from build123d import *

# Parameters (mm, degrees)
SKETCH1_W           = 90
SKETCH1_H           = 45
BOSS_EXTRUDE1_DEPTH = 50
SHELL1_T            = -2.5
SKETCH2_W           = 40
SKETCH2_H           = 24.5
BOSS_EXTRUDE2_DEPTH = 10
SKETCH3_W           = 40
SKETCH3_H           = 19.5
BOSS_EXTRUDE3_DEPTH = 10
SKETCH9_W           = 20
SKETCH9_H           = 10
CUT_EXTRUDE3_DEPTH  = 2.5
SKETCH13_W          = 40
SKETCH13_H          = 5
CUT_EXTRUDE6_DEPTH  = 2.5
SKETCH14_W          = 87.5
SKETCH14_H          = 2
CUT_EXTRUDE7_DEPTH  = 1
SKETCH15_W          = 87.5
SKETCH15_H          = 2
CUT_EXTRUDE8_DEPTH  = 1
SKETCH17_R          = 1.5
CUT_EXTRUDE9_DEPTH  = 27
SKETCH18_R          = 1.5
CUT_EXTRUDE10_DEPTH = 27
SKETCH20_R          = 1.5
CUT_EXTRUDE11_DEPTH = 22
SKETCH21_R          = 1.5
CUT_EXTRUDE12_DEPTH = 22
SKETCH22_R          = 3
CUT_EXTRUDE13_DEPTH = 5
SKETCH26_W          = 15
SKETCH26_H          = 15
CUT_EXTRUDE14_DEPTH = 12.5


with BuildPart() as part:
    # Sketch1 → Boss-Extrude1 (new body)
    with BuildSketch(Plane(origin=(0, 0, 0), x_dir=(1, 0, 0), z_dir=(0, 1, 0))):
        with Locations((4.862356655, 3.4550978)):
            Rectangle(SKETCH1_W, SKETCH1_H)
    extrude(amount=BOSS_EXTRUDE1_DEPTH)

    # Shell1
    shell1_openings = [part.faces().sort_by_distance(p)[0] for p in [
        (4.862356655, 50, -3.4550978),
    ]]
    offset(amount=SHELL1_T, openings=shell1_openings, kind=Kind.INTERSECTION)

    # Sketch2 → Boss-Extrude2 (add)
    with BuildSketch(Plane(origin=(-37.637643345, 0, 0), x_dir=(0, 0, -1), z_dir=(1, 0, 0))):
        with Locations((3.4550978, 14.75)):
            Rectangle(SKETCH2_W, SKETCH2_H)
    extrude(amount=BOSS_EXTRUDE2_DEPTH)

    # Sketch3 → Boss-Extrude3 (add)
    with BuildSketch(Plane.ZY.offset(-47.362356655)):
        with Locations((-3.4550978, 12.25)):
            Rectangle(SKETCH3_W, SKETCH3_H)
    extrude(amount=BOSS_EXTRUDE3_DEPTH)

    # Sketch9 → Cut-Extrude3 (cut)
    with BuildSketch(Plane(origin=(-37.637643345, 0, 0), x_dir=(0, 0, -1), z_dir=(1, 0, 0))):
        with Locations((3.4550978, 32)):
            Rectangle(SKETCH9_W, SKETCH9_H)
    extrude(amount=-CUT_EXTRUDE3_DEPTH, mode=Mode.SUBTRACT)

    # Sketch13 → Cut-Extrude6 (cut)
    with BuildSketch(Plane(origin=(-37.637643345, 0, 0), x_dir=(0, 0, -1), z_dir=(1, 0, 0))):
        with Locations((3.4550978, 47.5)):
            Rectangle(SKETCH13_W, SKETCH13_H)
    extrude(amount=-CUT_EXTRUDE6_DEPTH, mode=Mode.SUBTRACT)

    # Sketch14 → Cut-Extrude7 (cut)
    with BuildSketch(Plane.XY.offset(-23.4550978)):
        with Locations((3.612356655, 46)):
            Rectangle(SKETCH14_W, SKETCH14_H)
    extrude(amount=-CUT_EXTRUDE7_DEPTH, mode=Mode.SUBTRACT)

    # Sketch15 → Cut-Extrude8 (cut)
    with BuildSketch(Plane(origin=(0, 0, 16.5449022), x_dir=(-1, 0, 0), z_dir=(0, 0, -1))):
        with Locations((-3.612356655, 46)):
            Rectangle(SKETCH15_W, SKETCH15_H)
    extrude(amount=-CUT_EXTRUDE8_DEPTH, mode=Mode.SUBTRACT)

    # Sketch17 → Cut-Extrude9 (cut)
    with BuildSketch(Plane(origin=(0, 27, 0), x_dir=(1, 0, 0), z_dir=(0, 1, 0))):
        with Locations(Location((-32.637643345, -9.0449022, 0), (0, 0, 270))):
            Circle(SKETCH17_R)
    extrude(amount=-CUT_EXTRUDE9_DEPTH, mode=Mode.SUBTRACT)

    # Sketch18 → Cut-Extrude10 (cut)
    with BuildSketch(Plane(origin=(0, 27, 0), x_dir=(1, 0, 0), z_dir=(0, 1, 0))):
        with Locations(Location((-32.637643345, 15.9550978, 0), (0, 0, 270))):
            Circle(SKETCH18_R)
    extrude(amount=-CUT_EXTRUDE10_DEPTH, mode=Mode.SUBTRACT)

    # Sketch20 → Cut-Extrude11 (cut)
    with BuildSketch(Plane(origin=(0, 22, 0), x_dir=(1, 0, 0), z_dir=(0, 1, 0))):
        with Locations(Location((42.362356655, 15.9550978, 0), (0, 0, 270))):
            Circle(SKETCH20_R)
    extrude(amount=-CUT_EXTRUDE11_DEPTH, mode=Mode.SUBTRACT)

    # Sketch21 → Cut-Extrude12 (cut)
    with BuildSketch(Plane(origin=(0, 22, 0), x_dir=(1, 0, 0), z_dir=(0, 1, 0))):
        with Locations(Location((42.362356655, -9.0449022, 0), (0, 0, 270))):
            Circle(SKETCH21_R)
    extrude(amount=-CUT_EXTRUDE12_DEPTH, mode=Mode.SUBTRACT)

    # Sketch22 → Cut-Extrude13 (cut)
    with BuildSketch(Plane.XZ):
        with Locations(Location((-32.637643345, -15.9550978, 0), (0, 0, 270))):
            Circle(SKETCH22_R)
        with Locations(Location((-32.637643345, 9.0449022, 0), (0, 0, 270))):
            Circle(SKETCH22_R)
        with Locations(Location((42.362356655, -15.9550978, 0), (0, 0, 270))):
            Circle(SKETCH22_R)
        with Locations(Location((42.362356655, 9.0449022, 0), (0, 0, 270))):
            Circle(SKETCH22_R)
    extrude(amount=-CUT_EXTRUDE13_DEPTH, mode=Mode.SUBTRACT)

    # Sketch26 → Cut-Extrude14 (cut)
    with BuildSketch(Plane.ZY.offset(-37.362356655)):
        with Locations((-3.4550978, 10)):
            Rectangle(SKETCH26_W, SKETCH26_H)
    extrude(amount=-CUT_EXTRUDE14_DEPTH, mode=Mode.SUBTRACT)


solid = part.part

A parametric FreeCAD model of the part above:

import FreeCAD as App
import Part
import Sketcher


def faces_at(feature, points):
    """Names of the faces that lie closest to the given points."""
    faces = feature.Shape.Faces
    near = lambda p: min(range(len(faces)), key=lambda i: faces[i].distToShape(Part.Vertex(*p))[0])
    return sorted({f"Face{near(p) + 1}" for p in points})

doc = App.newDocument("Part")
params = doc.addObject("Spreadsheet::Sheet", "Params")
for row, (alias, value) in enumerate([
    ("sketch1_width", "90 mm"),
    ("sketch1_height", "45 mm"),
    ("pad1_length", "50 mm"),
    ("thickness_wall", "2.5 mm"),
    ("sketch2_height", "40 mm"),
    ("sketch2_width", "24.5 mm"),
    ("pad2_length", "10 mm"),
    ("sketch3_height", "40 mm"),
    ("sketch3_width", "19.5 mm"),
    ("pad3_length", "10 mm"),
    ("sketch4_width", "10 mm"),
    ("sketch4_height", "20 mm"),
    ("pocket1_length", "2.5 mm"),
    ("sketch5_width", "5 mm"),
    ("sketch5_height", "40 mm"),
    ("pocket2_length", "2.5 mm"),
    ("sketch6_height", "2 mm"),
    ("sketch6_width", "87.5 mm"),
    ("pocket3_length", "1 mm"),
    ("sketch7_height", "2 mm"),
    ("sketch7_width", "87.5 mm"),
    ("pocket4_length", "1 mm"),
    ("sketch8_diameter", "3 mm"),
    ("pocket5_length", "27 mm"),
    ("sketch9_diameter", "3 mm"),
    ("pocket6_length", "27 mm"),
    ("sketch10_diameter", "3 mm"),
    ("pocket7_length", "22 mm"),
    ("sketch11_diameter", "3 mm"),
    ("pocket8_length", "22 mm"),
    ("sketch12_diameter", "6 mm"),
    ("pocket9_length", "5 mm"),
    ("sketch13_width", "15 mm"),
    ("pocket10_length", "12.5 mm"),
], start=1):
    params.set(f"A{row}", alias)
    params.set(f"B{row}", "=" + value)
    params.setAlias(f"B{row}", alias)

body = doc.addObject("PartDesign::Body", "Body")

# Sketch on XZ plane
sketch1 = doc.addObject("Sketcher::SketchObject", "Sketch")
body.addObject(sketch1)
sketch1.AttachmentSupport = (doc.XZ_Plane, [""])
sketch1.MapMode = "FlatFace"
sketch1.addGeometry([
    Part.LineSegment(App.Vector(-40, -26, 0), App.Vector(-40, 19, 0)),
    Part.LineSegment(App.Vector(-40, 19, 0), App.Vector(50, 19, 0)),
    Part.LineSegment(App.Vector(50, 19, 0), App.Vector(50, -26, 0)),
    Part.LineSegment(App.Vector(50, -26, 0), App.Vector(-40, -26, 0)),
], False)
sketch1.addConstraint([
    Sketcher.Constraint("Coincident", 0, 2, 1, 1),
    Sketcher.Constraint("Coincident", 1, 2, 2, 1),
    Sketcher.Constraint("Coincident", 2, 2, 3, 1),
    Sketcher.Constraint("Coincident", 3, 2, 0, 1),
    Sketcher.Constraint("Vertical", 0),
    Sketcher.Constraint("Horizontal", 1),
    Sketcher.Constraint("Vertical", 2),
    Sketcher.Constraint("Horizontal", 3),
    Sketcher.Constraint("DistanceX", 1, 1, 1, 2, 90.0),
    Sketcher.Constraint("DistanceY", 0, 1, 0, 2, 45.0),
    Sketcher.Constraint("DistanceX", 0, 2, -1, 1, 40.137643),
    Sketcher.Constraint("DistanceY", -1, 1, 0, 2, 19.044902),
])
sketch1.setExpression("Constraints[8]", "Params.sketch1_width")
sketch1.setExpression("Constraints[9]", "Params.sketch1_height")
pad1 = doc.addObject("PartDesign::Pad", "Pad")
body.addObject(pad1)
pad1.Profile = sketch1
pad1.setExpression("Length", "Params.pad1_length")
pad1.Reversed = True
doc.recompute()

thickness = doc.addObject("PartDesign::Thickness", "Thickness")
body.addObject(thickness)
thickness.Base = (pad1, faces_at(pad1, [(4.862, 50, -3.455)]))
thickness.setExpression("Value", "Params.thickness_wall")
thickness.Reversed = True
thickness.Join = "Intersection"

# Sketch on YZ plane
sketch2 = doc.addObject("Sketcher::SketchObject", "Sketch001")
body.addObject(sketch2)
sketch2.AttachmentSupport = (doc.YZ_Plane, [""])
sketch2.MapMode = "FlatFace"
sketch2.AttachmentOffset = App.Placement(App.Vector(0, 0, -37.637643), App.Rotation())
sketch2.addGeometry([
    Part.LineSegment(App.Vector(27, 17, 0), App.Vector(2, 17, 0)),
    Part.LineSegment(App.Vector(2, 17, 0), App.Vector(2, -23, 0)),
    Part.LineSegment(App.Vector(2, -23, 0), App.Vector(27, -23, 0)),
    Part.LineSegment(App.Vector(27, -23, 0), App.Vector(27, 17, 0)),
], False)
sketch2.addConstraint([
    Sketcher.Constraint("Coincident", 0, 2, 1, 1),
    Sketcher.Constraint("Coincident", 1, 2, 2, 1),
    Sketcher.Constraint("Coincident", 2, 2, 3, 1),
    Sketcher.Constraint("Coincident", 3, 2, 0, 1),
    Sketcher.Constraint("Horizontal", 0),
    Sketcher.Constraint("Vertical", 1),
    Sketcher.Constraint("Horizontal", 2),
    Sketcher.Constraint("Vertical", 3),
    Sketcher.Constraint("DistanceY", 1, 2, 1, 1, 40.0),
    Sketcher.Constraint("DistanceX", 0, 2, 0, 1, 24.5),
    Sketcher.Constraint("DistanceX", -1, 1, 2, 2, 27.0),
    Sketcher.Constraint("DistanceY", -1, 1, 0, 2, 16.544902),
])
sketch2.setExpression("Constraints[8]", "Params.sketch2_height")
sketch2.setExpression("Constraints[9]", "Params.sketch2_width")
pad2 = doc.addObject("PartDesign::Pad", "Pad001")
body.addObject(pad2)
pad2.Profile = sketch2
pad2.setExpression("Length", "Params.pad2_length")

# Sketch on YZ plane
sketch3 = doc.addObject("Sketcher::SketchObject", "Sketch002")
body.addObject(sketch3)
sketch3.AttachmentSupport = (doc.YZ_Plane, [""])
sketch3.MapMode = "FlatFace"
sketch3.AttachmentOffset = App.Placement(App.Vector(0, 0, 47.362357), App.Rotation())
sketch3.addGeometry([
    Part.LineSegment(App.Vector(22, -23, 0), App.Vector(2, -23, 0)),
    Part.LineSegment(App.Vector(2, -23, 0), App.Vector(2, 17, 0)),
    Part.LineSegment(App.Vector(2, 17, 0), App.Vector(22, 17, 0)),
    Part.LineSegment(App.Vector(22, 17, 0), App.Vector(22, -23, 0)),
], False)
sketch3.addConstraint([
    Sketcher.Constraint("Coincident", 0, 2, 1, 1),
    Sketcher.Constraint("Coincident", 1, 2, 2, 1),
    Sketcher.Constraint("Coincident", 2, 2, 3, 1),
    Sketcher.Constraint("Coincident", 3, 2, 0, 1),
    Sketcher.Constraint("Horizontal", 0),
    Sketcher.Constraint("Vertical", 1),
    Sketcher.Constraint("Horizontal", 2),
    Sketcher.Constraint("Vertical", 3),
    Sketcher.Constraint("DistanceY", 1, 1, 1, 2, 40.0),
    Sketcher.Constraint("DistanceX", 0, 2, 0, 1, 19.5),
    Sketcher.Constraint("DistanceX", -1, 1, 2, 2, 22.0),
    Sketcher.Constraint("DistanceY", 0, 2, -1, 1, 23.455098),
])
sketch3.setExpression("Constraints[8]", "Params.sketch3_height")
sketch3.setExpression("Constraints[9]", "Params.sketch3_width")
pad3 = doc.addObject("PartDesign::Pad", "Pad002")
body.addObject(pad3)
pad3.Profile = sketch3
pad3.setExpression("Length", "Params.pad3_length")
pad3.Reversed = True

# Sketch on YZ plane
sketch4 = doc.addObject("Sketcher::SketchObject", "Sketch003")
body.addObject(sketch4)
sketch4.AttachmentSupport = (doc.YZ_Plane, [""])
sketch4.MapMode = "FlatFace"
sketch4.AttachmentOffset = App.Placement(App.Vector(0, 0, -37.637643), App.Rotation())
sketch4.addGeometry([
    Part.LineSegment(App.Vector(37, 7, 0), App.Vector(27, 7, 0)),
    Part.LineSegment(App.Vector(27, 7, 0), App.Vector(27, -13, 0)),
    Part.LineSegment(App.Vector(27, -13, 0), App.Vector(37, -13, 0)),
    Part.LineSegment(App.Vector(37, -13, 0), App.Vector(37, 7, 0)),
], False)
sketch4.addConstraint([
    Sketcher.Constraint("Coincident", 0, 2, 1, 1),
    Sketcher.Constraint("Coincident", 1, 2, 2, 1),
    Sketcher.Constraint("Coincident", 2, 2, 3, 1),
    Sketcher.Constraint("Coincident", 3, 2, 0, 1),
    Sketcher.Constraint("Horizontal", 0),
    Sketcher.Constraint("Vertical", 1),
    Sketcher.Constraint("Horizontal", 2),
    Sketcher.Constraint("Vertical", 3),
    Sketcher.Constraint("DistanceX", 0, 2, 0, 1, 10.0),
    Sketcher.Constraint("DistanceY", 1, 2, 1, 1, 20.0),
    Sketcher.Constraint("DistanceX", -1, 1, 0, 2, 27.0),
    Sketcher.Constraint("DistanceY", -1, 1, 0, 2, 6.544902),
])
sketch4.setExpression("Constraints[8]", "Params.sketch4_width")
sketch4.setExpression("Constraints[9]", "Params.sketch4_height")
pocket1 = doc.addObject("PartDesign::Pocket", "Pocket")
body.addObject(pocket1)
pocket1.Profile = sketch4
pocket1.setExpression("Length", "Params.pocket1_length")

# Sketch on YZ plane
sketch5 = doc.addObject("Sketcher::SketchObject", "Sketch004")
body.addObject(sketch5)
sketch5.AttachmentSupport = (doc.YZ_Plane, [""])
sketch5.MapMode = "FlatFace"
sketch5.AttachmentOffset = App.Placement(App.Vector(0, 0, -37.637643), App.Rotation())
sketch5.addGeometry([
    Part.LineSegment(App.Vector(50, 17, 0), App.Vector(45, 17, 0)),
    Part.LineSegment(App.Vector(45, 17, 0), App.Vector(45, -23, 0)),
    Part.LineSegment(App.Vector(45, -23, 0), App.Vector(50, -23, 0)),
    Part.LineSegment(App.Vector(50, -23, 0), App.Vector(50, 17, 0)),
], False)
sketch5.addConstraint([
    Sketcher.Constraint("Coincident", 0, 2, 1, 1),
    Sketcher.Constraint("Coincident", 1, 2, 2, 1),
    Sketcher.Constraint("Coincident", 2, 2, 3, 1),
    Sketcher.Constraint("Coincident", 3, 2, 0, 1),
    Sketcher.Constraint("Horizontal", 0),
    Sketcher.Constraint("Vertical", 1),
    Sketcher.Constraint("Horizontal", 2),
    Sketcher.Constraint("Vertical", 3),
    Sketcher.Constraint("DistanceX", 0, 2, 0, 1, 5.0),
    Sketcher.Constraint("DistanceY", 1, 2, 1, 1, 40.0),
    Sketcher.Constraint("DistanceX", -1, 1, 0, 2, 45.0),
    Sketcher.Constraint("DistanceY", -1, 1, 0, 2, 16.544902),
])
sketch5.setExpression("Constraints[8]", "Params.sketch5_width")
sketch5.setExpression("Constraints[9]", "Params.sketch5_height")
pocket2 = doc.addObject("PartDesign::Pocket", "Pocket001")
body.addObject(pocket2)
pocket2.Profile = sketch5
pocket2.setExpression("Length", "Params.pocket2_length")

# Sketch on XY plane
sketch6 = doc.addObject("Sketcher::SketchObject", "Sketch005")
body.addObject(sketch6)
sketch6.AttachmentSupport = (doc.XY_Plane, [""])
sketch6.MapMode = "FlatFace"
sketch6.AttachmentOffset = App.Placement(App.Vector(0, 0, -23.455098), App.Rotation())
sketch6.addGeometry([
    Part.LineSegment(App.Vector(-40.1, 47, 0), App.Vector(-40.1, 45, 0)),
    Part.LineSegment(App.Vector(-40.1, 45, 0), App.Vector(47.4, 45, 0)),
    Part.LineSegment(App.Vector(47.4, 45, 0), App.Vector(47.4, 47, 0)),
    Part.LineSegment(App.Vector(47.4, 47, 0), App.Vector(-40.1, 47, 0)),
], False)
sketch6.addConstraint([
    Sketcher.Constraint("Coincident", 0, 2, 1, 1),
    Sketcher.Constraint("Coincident", 1, 2, 2, 1),
    Sketcher.Constraint("Coincident", 2, 2, 3, 1),
    Sketcher.Constraint("Coincident", 3, 2, 0, 1),
    Sketcher.Constraint("Vertical", 0),
    Sketcher.Constraint("Horizontal", 1),
    Sketcher.Constraint("Vertical", 2),
    Sketcher.Constraint("Horizontal", 3),
    Sketcher.Constraint("DistanceY", 0, 2, 0, 1, 2.0),
    Sketcher.Constraint("DistanceX", 1, 1, 1, 2, 87.5),
    Sketcher.Constraint("DistanceY", -1, 1, 0, 2, 45.0),
    Sketcher.Constraint("DistanceX", 0, 2, -1, 1, 40.137643),
])
sketch6.setExpression("Constraints[8]", "Params.sketch6_height")
sketch6.setExpression("Constraints[9]", "Params.sketch6_width")
pocket3 = doc.addObject("PartDesign::Pocket", "Pocket002")
body.addObject(pocket3)
pocket3.Profile = sketch6
pocket3.setExpression("Length", "Params.pocket3_length")

# Sketch on XY plane
sketch7 = doc.addObject("Sketcher::SketchObject", "Sketch006")
body.addObject(sketch7)
sketch7.AttachmentSupport = (doc.XY_Plane, [""])
sketch7.MapMode = "FlatFace"
sketch7.AttachmentOffset = App.Placement(App.Vector(0, 0, 16.544902), App.Rotation())
sketch7.addGeometry([
    Part.LineSegment(App.Vector(47.4, 47, 0), App.Vector(47.4, 45, 0)),
    Part.LineSegment(App.Vector(47.4, 45, 0), App.Vector(-40.1, 45, 0)),
    Part.LineSegment(App.Vector(-40.1, 45, 0), App.Vector(-40.1, 47, 0)),
    Part.LineSegment(App.Vector(-40.1, 47, 0), App.Vector(47.4, 47, 0)),
], False)
sketch7.addConstraint([
    Sketcher.Constraint("Coincident", 0, 2, 1, 1),
    Sketcher.Constraint("Coincident", 1, 2, 2, 1),
    Sketcher.Constraint("Coincident", 2, 2, 3, 1),
    Sketcher.Constraint("Coincident", 3, 2, 0, 1),
    Sketcher.Constraint("Vertical", 0),
    Sketcher.Constraint("Horizontal", 1),
    Sketcher.Constraint("Vertical", 2),
    Sketcher.Constraint("Horizontal", 3),
    Sketcher.Constraint("DistanceY", 0, 2, 0, 1, 2.0),
    Sketcher.Constraint("DistanceX", 1, 2, 1, 1, 87.5),
    Sketcher.Constraint("DistanceY", -1, 1, 0, 2, 45.0),
    Sketcher.Constraint("DistanceX", -1, 1, 0, 2, 47.362357),
])
sketch7.setExpression("Constraints[8]", "Params.sketch7_height")
sketch7.setExpression("Constraints[9]", "Params.sketch7_width")
pocket4 = doc.addObject("PartDesign::Pocket", "Pocket003")
body.addObject(pocket4)
pocket4.Profile = sketch7
pocket4.setExpression("Length", "Params.pocket4_length")
pocket4.Reversed = True

# Sketch on XZ plane
sketch8 = doc.addObject("Sketcher::SketchObject", "Sketch007")
body.addObject(sketch8)
sketch8.AttachmentSupport = (doc.XZ_Plane, [""])
sketch8.MapMode = "FlatFace"
sketch8.AttachmentOffset = App.Placement(App.Vector(0, 0, -27), App.Rotation())
sketch8.addGeometry(Part.Circle(App.Vector(-32.6, 9, 0), App.Vector(0, 0, 1), 1.5), False)
sketch8.addConstraint([
    Sketcher.Constraint("Diameter", 0, 3.0),
    Sketcher.Constraint("DistanceX", 0, 3, -1, 1, 32.637643),
    Sketcher.Constraint("DistanceY", -1, 1, 0, 3, 9.044902),
])
sketch8.setExpression("Constraints[0]", "Params.sketch8_diameter")
pocket5 = doc.addObject("PartDesign::Pocket", "Pocket004")
body.addObject(pocket5)
pocket5.Profile = sketch8
pocket5.setExpression("Length", "Params.pocket5_length")
pocket5.Reversed = True

# Sketch on XZ plane
sketch9 = doc.addObject("Sketcher::SketchObject", "Sketch008")
body.addObject(sketch9)
sketch9.AttachmentSupport = (doc.XZ_Plane, [""])
sketch9.MapMode = "FlatFace"
sketch9.AttachmentOffset = App.Placement(App.Vector(0, 0, -27), App.Rotation())
sketch9.addGeometry(Part.Circle(App.Vector(-32.6, -16, 0), App.Vector(0, 0, 1), 1.5), False)
sketch9.addConstraint([
    Sketcher.Constraint("Diameter", 0, 3.0),
    Sketcher.Constraint("DistanceX", 0, 3, -1, 1, 32.637643),
    Sketcher.Constraint("DistanceY", 0, 3, -1, 1, 15.955098),
])
sketch9.setExpression("Constraints[0]", "Params.sketch9_diameter")
pocket6 = doc.addObject("PartDesign::Pocket", "Pocket005")
body.addObject(pocket6)
pocket6.Profile = sketch9
pocket6.setExpression("Length", "Params.pocket6_length")
pocket6.Reversed = True

# Sketch on XZ plane
sketch10 = doc.addObject("Sketcher::SketchObject", "Sketch009")
body.addObject(sketch10)
sketch10.AttachmentSupport = (doc.XZ_Plane, [""])
sketch10.MapMode = "FlatFace"
sketch10.AttachmentOffset = App.Placement(App.Vector(0, 0, -22), App.Rotation())
sketch10.addGeometry(Part.Circle(App.Vector(42.4, -16, 0), App.Vector(0, 0, 1), 1.5), False)
sketch10.addConstraint([
    Sketcher.Constraint("Diameter", 0, 3.0),
    Sketcher.Constraint("DistanceX", -1, 1, 0, 3, 42.362357),
    Sketcher.Constraint("DistanceY", 0, 3, -1, 1, 15.955098),
])
sketch10.setExpression("Constraints[0]", "Params.sketch10_diameter")
pocket7 = doc.addObject("PartDesign::Pocket", "Pocket006")
body.addObject(pocket7)
pocket7.Profile = sketch10
pocket7.setExpression("Length", "Params.pocket7_length")
pocket7.Reversed = True

# Sketch on XZ plane
sketch11 = doc.addObject("Sketcher::SketchObject", "Sketch010")
body.addObject(sketch11)
sketch11.AttachmentSupport = (doc.XZ_Plane, [""])
sketch11.MapMode = "FlatFace"
sketch11.AttachmentOffset = App.Placement(App.Vector(0, 0, -22), App.Rotation())
sketch11.addGeometry(Part.Circle(App.Vector(42.4, 9, 0), App.Vector(0, 0, 1), 1.5), False)
sketch11.addConstraint([
    Sketcher.Constraint("Diameter", 0, 3.0),
    Sketcher.Constraint("DistanceX", -1, 1, 0, 3, 42.362357),
    Sketcher.Constraint("DistanceY", -1, 1, 0, 3, 9.044902),
])
sketch11.setExpression("Constraints[0]", "Params.sketch11_diameter")
pocket8 = doc.addObject("PartDesign::Pocket", "Pocket007")
body.addObject(pocket8)
pocket8.Profile = sketch11
pocket8.setExpression("Length", "Params.pocket8_length")
pocket8.Reversed = True

# Sketch on XZ plane
sketch12 = doc.addObject("Sketcher::SketchObject", "Sketch011")
body.addObject(sketch12)
sketch12.AttachmentSupport = (doc.XZ_Plane, [""])
sketch12.MapMode = "FlatFace"
sketch12.addGeometry([
    Part.Circle(App.Vector(-32.6, -16, 0), App.Vector(0, 0, 1), 3),
    Part.Circle(App.Vector(-32.6, 9, 0), App.Vector(0, 0, 1), 3),
    Part.Circle(App.Vector(42.4, -16, 0), App.Vector(0, 0, 1), 3),
    Part.Circle(App.Vector(42.4, 9, 0), App.Vector(0, 0, 1), 3),
], False)
sketch12.addConstraint([
    Sketcher.Constraint("Equal", 0, 1),
    Sketcher.Constraint("Equal", 1, 2),
    Sketcher.Constraint("Equal", 2, 3),
    Sketcher.Constraint("Horizontal", 0, 3, 2, 3),
    Sketcher.Constraint("Horizontal", 1, 3, 3, 3),
    Sketcher.Constraint("Vertical", 0, 3, 1, 3),
    Sketcher.Constraint("Vertical", 2, 3, 3, 3),
    Sketcher.Constraint("Diameter", 0, 6.0),
    Sketcher.Constraint("DistanceY", 0, 3, 1, 3, 25.0),
    Sketcher.Constraint("DistanceX", 0, 3, 2, 3, 75.0),
    Sketcher.Constraint("DistanceX", 0, 3, -1, 1, 32.637643),
    Sketcher.Constraint("DistanceY", 0, 3, -1, 1, 15.955098),
])
sketch12.setExpression("Constraints[7]", "Params.sketch12_diameter")
pocket9 = doc.addObject("PartDesign::Pocket", "Pocket008")
body.addObject(pocket9)
pocket9.Profile = sketch12
pocket9.setExpression("Length", "Params.pocket9_length")

# Sketch on YZ plane
sketch13 = doc.addObject("Sketcher::SketchObject", "Sketch012")
body.addObject(sketch13)
sketch13.AttachmentSupport = (doc.YZ_Plane, [""])
sketch13.MapMode = "FlatFace"
sketch13.AttachmentOffset = App.Placement(App.Vector(0, 0, 37.362357), App.Rotation())
sketch13.addGeometry([
    Part.LineSegment(App.Vector(18, -11, 0), App.Vector(2, -11, 0)),
    Part.LineSegment(App.Vector(2, -11, 0), App.Vector(2, 4, 0)),
    Part.LineSegment(App.Vector(2, 4, 0), App.Vector(18, 4, 0)),
    Part.LineSegment(App.Vector(18, 4, 0), App.Vector(18, -11, 0)),
], False)
sketch13.addConstraint([
    Sketcher.Constraint("Coincident", 0, 2, 1, 1),
    Sketcher.Constraint("Coincident", 1, 2, 2, 1),
    Sketcher.Constraint("Coincident", 2, 2, 3, 1),
    Sketcher.Constraint("Coincident", 3, 2, 0, 1),
    Sketcher.Constraint("Horizontal", 0),
    Sketcher.Constraint("Vertical", 1),
    Sketcher.Constraint("Horizontal", 2),
    Sketcher.Constraint("Vertical", 3),
    Sketcher.Constraint("Equal", 2, 1),
    Sketcher.Constraint("DistanceX", 0, 2, 0, 1, 15.0),
    Sketcher.Constraint("DistanceX", -1, 1, 0, 2, 2.5),
    Sketcher.Constraint("DistanceY", 0, 2, -1, 1, 10.955098),
])
sketch13.setExpression("Constraints[9]", "Params.sketch13_width")
pocket10 = doc.addObject("PartDesign::Pocket", "Pocket009")
body.addObject(pocket10)
pocket10.Profile = sketch13
pocket10.setExpression("Length", "Params.pocket10_length")
pocket10.Reversed = True

doc.recompute()
